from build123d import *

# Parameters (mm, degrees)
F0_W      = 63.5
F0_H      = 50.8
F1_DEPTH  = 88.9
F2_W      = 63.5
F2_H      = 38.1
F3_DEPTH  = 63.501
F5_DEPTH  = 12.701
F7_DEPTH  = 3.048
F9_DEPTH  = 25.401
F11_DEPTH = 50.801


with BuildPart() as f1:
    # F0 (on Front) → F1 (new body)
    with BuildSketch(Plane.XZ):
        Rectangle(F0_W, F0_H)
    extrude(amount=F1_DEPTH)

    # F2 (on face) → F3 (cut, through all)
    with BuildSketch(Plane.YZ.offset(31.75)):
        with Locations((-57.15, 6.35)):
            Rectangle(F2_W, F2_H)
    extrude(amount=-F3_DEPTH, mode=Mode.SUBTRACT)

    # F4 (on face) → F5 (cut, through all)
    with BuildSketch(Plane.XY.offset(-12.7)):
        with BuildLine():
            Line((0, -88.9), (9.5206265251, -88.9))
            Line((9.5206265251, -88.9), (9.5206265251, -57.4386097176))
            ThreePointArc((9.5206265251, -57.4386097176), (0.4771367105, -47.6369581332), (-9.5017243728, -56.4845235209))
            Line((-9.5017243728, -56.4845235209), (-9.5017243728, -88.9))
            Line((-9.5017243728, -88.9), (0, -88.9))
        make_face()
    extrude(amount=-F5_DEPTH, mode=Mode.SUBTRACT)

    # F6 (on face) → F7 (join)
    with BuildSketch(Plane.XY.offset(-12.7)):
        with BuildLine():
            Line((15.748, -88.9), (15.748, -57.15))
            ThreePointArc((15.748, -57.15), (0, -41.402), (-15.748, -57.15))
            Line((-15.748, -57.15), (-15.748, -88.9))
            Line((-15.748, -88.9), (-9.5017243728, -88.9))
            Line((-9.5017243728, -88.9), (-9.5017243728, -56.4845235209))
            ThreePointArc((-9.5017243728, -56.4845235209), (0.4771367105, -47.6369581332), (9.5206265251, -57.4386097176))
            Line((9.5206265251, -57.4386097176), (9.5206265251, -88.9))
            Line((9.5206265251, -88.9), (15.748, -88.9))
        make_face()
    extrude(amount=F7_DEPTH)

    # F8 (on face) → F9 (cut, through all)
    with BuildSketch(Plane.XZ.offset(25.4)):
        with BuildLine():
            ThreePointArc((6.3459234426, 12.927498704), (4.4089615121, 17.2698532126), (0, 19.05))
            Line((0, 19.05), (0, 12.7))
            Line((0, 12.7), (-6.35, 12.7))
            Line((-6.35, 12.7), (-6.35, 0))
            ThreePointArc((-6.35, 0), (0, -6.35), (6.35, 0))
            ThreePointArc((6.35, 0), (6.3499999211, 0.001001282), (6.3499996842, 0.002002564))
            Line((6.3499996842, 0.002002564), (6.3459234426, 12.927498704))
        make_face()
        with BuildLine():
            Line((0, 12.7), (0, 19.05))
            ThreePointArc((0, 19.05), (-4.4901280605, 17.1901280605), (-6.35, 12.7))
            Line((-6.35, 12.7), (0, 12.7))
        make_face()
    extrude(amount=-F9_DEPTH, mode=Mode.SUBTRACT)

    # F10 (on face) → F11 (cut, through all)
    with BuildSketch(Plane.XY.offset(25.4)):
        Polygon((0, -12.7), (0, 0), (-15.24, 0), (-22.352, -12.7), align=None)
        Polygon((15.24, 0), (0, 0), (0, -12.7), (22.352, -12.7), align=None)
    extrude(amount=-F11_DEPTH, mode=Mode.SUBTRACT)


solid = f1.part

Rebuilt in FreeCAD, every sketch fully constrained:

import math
import FreeCAD as App
import Part
import Sketcher

V = App.Vector
Q = App.Units.Quantity


def add_polygon(sketch, points):
    """Adds a closed chain of lines whose ends are joined by coincident constraints."""
    first, n = sketch.GeometryCount, len(points)
    for a, b in zip(points, points[1:] + points[:1]):
        sketch.addGeometry(Part.LineSegment(App.Vector(*a, 0), App.Vector(*b, 0)), False)
    for i in range(n):
        sketch.addConstraint(Sketcher.Constraint("Coincident", first + i, 2, first + (i + 1) % n, 1))

doc = App.newDocument("Part")
body = doc.addObject("PartDesign::Body", "Body")

# Sketch on XZ plane
sketch1 = body.newObject("Sketcher::SketchObject", "Sketch")
sketch1.AttachmentSupport = (doc.getObject("XZ_Plane"), [""])
sketch1.MapMode = "FlatFace"
add_polygon(sketch1, [(-32, 25), (-32, -25), (32, -25), (32, 25)])  # lines 0-3
sketch1.addConstraint(Sketcher.Constraint("Vertical", 0))
sketch1.addConstraint(Sketcher.Constraint("Horizontal", 1))
sketch1.addConstraint(Sketcher.Constraint("Vertical", 2))
sketch1.addConstraint(Sketcher.Constraint("Horizontal", 3))
sketch1.addConstraint(Sketcher.Constraint("Symmetric", 0, 2, 2, 2, -1, 1))
sketch1.addConstraint(Sketcher.Constraint("DistanceY", 0, 2, 0, 1, Q("2 in")))
sketch1.addConstraint(Sketcher.Constraint("DistanceX", 1, 1, 1, 2, Q("2.5 in")))
pad1 = body.newObject("PartDesign::Pad", "Pad")
pad1.Profile = sketch1
pad1.Length = Q("3.5 in")

# Sketch on YZ plane
sketch2 = body.newObject("Sketcher::SketchObject", "Sketch001")
sketch2.AttachmentSupport = (doc.getObject("YZ_Plane"), [""])
sketch2.MapMode = "FlatFace"
sketch2.AttachmentOffset = App.Placement(V(0, 0, 1.25 * 25.4), App.Rotation())
add_polygon(sketch2, [(-89, 25), (-89, -13), (-25, -13), (-25, 25)])  # lines 0-3
sketch2.addConstraint(Sketcher.Constraint("Vertical", 0))
sketch2.addConstraint(Sketcher.Constraint("Horizontal", 1))
sketch2.addConstraint(Sketcher.Constraint("Vertical", 2))
sketch2.addConstraint(Sketcher.Constraint("Horizontal", 3))
sketch2.addConstraint(Sketcher.Constraint("DistanceX", 1, 1, 1, 2, Q("2.5 in")))
sketch2.addConstraint(Sketcher.Constraint("DistanceY", 0, 2, 0, 1, Q("1.5 in")))
sketch2.addConstraint(Sketcher.Constraint("DistanceX", 1, 2, -1, 1, Q("1 in")))
sketch2.addConstraint(Sketcher.Constraint("DistanceY", -1, 1, 2, 2, Q("1 in")))
pocket1 = body.newObject("PartDesign::Pocket", "Pocket")
pocket1.Profile = sketch2
pocket1.Type = "ThroughAll"

# Sketch on XY plane
sketch3 = body.newObject("Sketcher::SketchObject", "Sketch002")
sketch3.AttachmentSupport = (doc.getObject("XY_Plane"), [""])
sketch3.MapMode = "FlatFace"
sketch3.AttachmentOffset = App.Placement(V(0, 0, -0.5 * 25.4), App.Rotation())
sketch3.addGeometry(Part.LineSegment(V(10, -89, 0), V(10, -57, 0)), False)
sketch3.addGeometry(Part.ArcOfCircle(Part.Circle(V(0, -57, 0), V(0, 0, 1), 10), math.radians(-2), math.radians(176)), False)
sketch3.addGeometry(Part.LineSegment(V(-10, -56, 0), V(-10, -89, 0)), False)
sketch3.addGeometry(Part.LineSegment(V(-10, -89, 0), V(10, -89, 0)), False)
sketch3.addConstraint(Sketcher.Constraint("Coincident", 0, 2, 1, 1))
sketch3.addConstraint(Sketcher.Constraint("Coincident", 1, 2, 2, 1))
sketch3.addConstraint(Sketcher.Constraint("Coincident", 2, 2, 3, 1))
sketch3.addConstraint(Sketcher.Constraint("Coincident", 3, 2, 0, 1))
sketch3.addConstraint(Sketcher.Constraint("Vertical", 0))
sketch3.addConstraint(Sketcher.Constraint("Vertical", 2))
sketch3.addConstraint(Sketcher.Constraint("Horizontal", 3))
sketch3.addConstraint(Sketcher.Constraint("PointOnObject", 1, 3, -2))
sketch3.addConstraint(Sketcher.Constraint("Radius", 1, Q("0.375 in")))
sketch3.addConstraint(Sketcher.Constraint("DistanceY", 2, 2, -1, 1, Q("3.5 in")))
sketch3.addConstraint(Sketcher.Constraint("DistanceY", 1, 3, -1, 1, Q("2.25 in")))
sketch3.addConstraint(Sketcher.Constraint("DistanceY", 2, 2, 2, 1, Q("1.2761999 in")))
sketch3.addConstraint(Sketcher.Constraint("DistanceX", 3, 1, 3, 2, 19.022351))
pocket2 = body.newObject("PartDesign::Pocket", "Pocket001")
pocket2.Profile = sketch3
pocket2.Type = "ThroughAll"

# Sketch on XY plane
sketch4 = body.newObject("Sketcher::SketchObject", "Sketch003")
sketch4.AttachmentSupport = (doc.getObject("XY_Plane"), [""])
sketch4.MapMode = "FlatFace"
sketch4.AttachmentOffset = App.Placement(V(0, 0, -0.5 * 25.4), App.Rotation())
sketch4.addGeometry(Part.LineSegment(V(16, -89, 0), V(16, -57, 0)), False)
sketch4.addGeometry(Part.ArcOfCircle(Part.Circle(V(0, -57, 0), V(0, 0, 1), 16), math.radians(0), math.radians(180)), False)
sketch4.addGeometry(Part.LineSegment(V(-16, -57, 0), V(-16, -89, 0)), False)
sketch4.addGeometry(Part.LineSegment(V(-16, -89, 0), V(-10, -89, 0)), False)
sketch4.addGeometry(Part.LineSegment(V(-10, -89, 0), V(-10, -56, 0)), False)
sketch4.addGeometry(Part.ArcOfCircle(Part.Circle(V(0, -57, 0), V(0, 0, 1), 10), math.radians(-2), math.radians(176)), False)
sketch4.addGeometry(Part.LineSegment(V(10, -57, 0), V(10, -89, 0)), False)
sketch4.addGeometry(Part.LineSegment(V(10, -89, 0), V(16, -89, 0)), False)
sketch4.addConstraint(Sketcher.Constraint("Tangent", 0, 2, 1, 1))
sketch4.addConstraint(Sketcher.Constraint("Tangent", 1, 2, 2, 1))
sketch4.addConstraint(Sketcher.Constraint("Coincident", 2, 2, 3, 1))
sketch4.addConstraint(Sketcher.Constraint("Coincident", 3, 2, 4, 1))
sketch4.addConstraint(Sketcher.Constraint("Coincident", 4, 2, 5, 2))
sketch4.addConstraint(Sketcher.Constraint("Coincident", 5, 1, 6, 1))
sketch4.addConstraint(Sketcher.Constraint("Coincident", 6, 2, 7, 1))
sketch4.addConstraint(Sketcher.Constraint("Coincident", 7, 2, 0, 1))
sketch4.addConstraint(Sketcher.Constraint("Vertical", 0))
sketch4.addConstraint(Sketcher.Constraint("Vertical", 2))
sketch4.addConstraint(Sketcher.Constraint("Horizontal", 3))
sketch4.addConstraint(Sketcher.Constraint("Vertical", 4))
sketch4.addConstraint(Sketcher.Constraint("Vertical", 6))
sketch4.addConstraint(Sketcher.Constraint("Horizontal", 7))
sketch4.addConstraint(Sketcher.Constraint("Coincident", 5, 3, 1, 3))
sketch4.addConstraint(Sketcher.Constraint("Symmetric", 2, 2, 7, 2, -2))
sketch4.addConstraint(Sketcher.Constraint("Radius", 1, Q("0.62 in")))
sketch4.addConstraint(Sketcher.Constraint("Radius", 5, Q("0.375 in")))
sketch4.addConstraint(Sketcher.Constraint("DistanceY", 0, 1, 0, 2, Q("1.25 in")))
sketch4.addConstraint(Sketcher.Constraint("DistanceY", 2, 2, -1, 1, Q("3.5 in")))
sketch4.addConstraint(Sketcher.Constraint("DistanceY", 4, 1, 4, 2, Q("1.2761999 in")))
sketch4.addConstraint(Sketcher.Constraint("DistanceY", 6, 2, 6, 1, 31.46139))
pad2 = body.newObject("PartDesign::Pad", "Pad001")
pad2.Profile = sketch4
pad2.Length = Q("0.12 in")

# Sketch on XZ plane
sketch5 = body.newObject("Sketcher::SketchObject", "Sketch004")
sketch5.AttachmentSupport = (doc.getObject("XZ_Plane"), [""])
sketch5.MapMode = "FlatFace"
sketch5.AttachmentOffset = App.Placement(V(0, 0, 1 * 25.4), App.Rotation())
sketch5.addGeometry(Part.ArcOfCircle(Part.Circle(V(0, 12.7, 0), V(0, 0, 1), 6.35), math.radians(2), math.radians(90)), False)
sketch5.addGeometry(Part.ArcOfCircle(Part.Circle(V(0, 12.7, 0), V(0, 0, 1), 6.35), math.radians(90), math.radians(180)), False)
sketch5.addGeometry(Part.LineSegment(V(-6.35, 12.7, 0), V(-6.35, 0, 0)), False)
sketch5.addGeometry(Part.ArcOfCircle(Part.Circle(V(0, 0, 0), V(0, 0, 1), 6.35), math.radians(180), math.radians(360)), False)
sketch5.addGeometry(Part.ArcOfCircle(Part.Circle(V(0.0046, 0, 0), V(0, 0, 1), 6.3454), math.radians(0), math.radians(0.02)), False)
sketch5.addGeometry(Part.LineSegment(V(6.35, 0.002, 0), V(6.3459, 12.9275, 0)), False)
sketch5.addConstraint(Sketcher.Constraint("Tangent", 0, 2, 1, 1))
sketch5.addConstraint(Sketcher.Constraint("Tangent", 1, 2, 2, 1))
sketch5.addConstraint(Sketcher.Constraint("Tangent", 2, 2, 3, 1))
sketch5.addConstraint(Sketcher.Constraint("Tangent", 3, 2, 4, 1))
sketch5.addConstraint(Sketcher.Constraint("Tangent", 4, 2, 5, 1))
sketch5.addConstraint(Sketcher.Constraint("Coincident", 5, 2, 0, 1))
sketch5.addConstraint(Sketcher.Constraint("Vertical", 2))
sketch5.addConstraint(Sketcher.Constraint("Coincident", 3, 3, -1, 1))
sketch5.addConstraint(Sketcher.Constraint("Equal", 0, 1))
sketch5.addConstraint(Sketcher.Constraint("Equal", 1, 3))
sketch5.addConstraint(Sketcher.Constraint("PointOnObject", 4, 3, -1))
sketch5.addConstraint(Sketcher.Constraint("PointOnObject", 0, 2, -2))
sketch5.addConstraint(Sketcher.Constraint("Radius", 0, Q("0.25 in")))
sketch5.addConstraint(Sketcher.Constraint("DistanceY", 2, 2, 2, 1, Q("0.5 in")))
sketch5.addConstraint(Sketcher.Constraint("Radius", 4, 6.345352))
sketch5.addConstraint(Sketcher.Constraint("DistanceY", -1, 1, 5, 2, 12.927499))
pocket3 = body.newObject("PartDesign::Pocket", "Pocket002")
pocket3.Profile = sketch5
pocket3.Type = "ThroughAll"

# Sketch on XY plane
sketch6 = body.newObject("Sketcher::SketchObject", "Sketch005")
sketch6.AttachmentSupport = (doc.getObject("XY_Plane"), [""])
sketch6.MapMode = "FlatFace"
sketch6.AttachmentOffset = App.Placement(V(0, 0, 1 * 25.4), App.Rotation())
add_polygon(sketch6, [(-15, 0), (-22, -13), (22, -13), (15, 0)])  # lines 0-3
sketch6.addConstraint(Sketcher.Constraint("Horizontal", 1))
sketch6.addConstraint(Sketcher.Constraint("Horizontal", 3))
sketch6.addConstraint(Sketcher.Constraint("Symmetric", 2, 2, 3, 2, -1, 1))
sketch6.addConstraint(Sketcher.Constraint("Equal", 0, 2))
sketch6.addConstraint(Sketcher.Constraint("DistanceX", 3, 2, 3, 1, Q("1.2 in")))
sketch6.addConstraint(Sketcher.Constraint("DistanceX", 1, 1, 1, 2, Q("1.76 in")))
sketch6.addConstraint(Sketcher.Constraint("DistanceY", 0, 2, -1, 1, Q("0.5 in")))
pocket4 = body.newObject("PartDesign::Pocket", "Pocket003")
pocket4.Profile = sketch6
pocket4.Type = "ThroughAll"

doc.recompute()
